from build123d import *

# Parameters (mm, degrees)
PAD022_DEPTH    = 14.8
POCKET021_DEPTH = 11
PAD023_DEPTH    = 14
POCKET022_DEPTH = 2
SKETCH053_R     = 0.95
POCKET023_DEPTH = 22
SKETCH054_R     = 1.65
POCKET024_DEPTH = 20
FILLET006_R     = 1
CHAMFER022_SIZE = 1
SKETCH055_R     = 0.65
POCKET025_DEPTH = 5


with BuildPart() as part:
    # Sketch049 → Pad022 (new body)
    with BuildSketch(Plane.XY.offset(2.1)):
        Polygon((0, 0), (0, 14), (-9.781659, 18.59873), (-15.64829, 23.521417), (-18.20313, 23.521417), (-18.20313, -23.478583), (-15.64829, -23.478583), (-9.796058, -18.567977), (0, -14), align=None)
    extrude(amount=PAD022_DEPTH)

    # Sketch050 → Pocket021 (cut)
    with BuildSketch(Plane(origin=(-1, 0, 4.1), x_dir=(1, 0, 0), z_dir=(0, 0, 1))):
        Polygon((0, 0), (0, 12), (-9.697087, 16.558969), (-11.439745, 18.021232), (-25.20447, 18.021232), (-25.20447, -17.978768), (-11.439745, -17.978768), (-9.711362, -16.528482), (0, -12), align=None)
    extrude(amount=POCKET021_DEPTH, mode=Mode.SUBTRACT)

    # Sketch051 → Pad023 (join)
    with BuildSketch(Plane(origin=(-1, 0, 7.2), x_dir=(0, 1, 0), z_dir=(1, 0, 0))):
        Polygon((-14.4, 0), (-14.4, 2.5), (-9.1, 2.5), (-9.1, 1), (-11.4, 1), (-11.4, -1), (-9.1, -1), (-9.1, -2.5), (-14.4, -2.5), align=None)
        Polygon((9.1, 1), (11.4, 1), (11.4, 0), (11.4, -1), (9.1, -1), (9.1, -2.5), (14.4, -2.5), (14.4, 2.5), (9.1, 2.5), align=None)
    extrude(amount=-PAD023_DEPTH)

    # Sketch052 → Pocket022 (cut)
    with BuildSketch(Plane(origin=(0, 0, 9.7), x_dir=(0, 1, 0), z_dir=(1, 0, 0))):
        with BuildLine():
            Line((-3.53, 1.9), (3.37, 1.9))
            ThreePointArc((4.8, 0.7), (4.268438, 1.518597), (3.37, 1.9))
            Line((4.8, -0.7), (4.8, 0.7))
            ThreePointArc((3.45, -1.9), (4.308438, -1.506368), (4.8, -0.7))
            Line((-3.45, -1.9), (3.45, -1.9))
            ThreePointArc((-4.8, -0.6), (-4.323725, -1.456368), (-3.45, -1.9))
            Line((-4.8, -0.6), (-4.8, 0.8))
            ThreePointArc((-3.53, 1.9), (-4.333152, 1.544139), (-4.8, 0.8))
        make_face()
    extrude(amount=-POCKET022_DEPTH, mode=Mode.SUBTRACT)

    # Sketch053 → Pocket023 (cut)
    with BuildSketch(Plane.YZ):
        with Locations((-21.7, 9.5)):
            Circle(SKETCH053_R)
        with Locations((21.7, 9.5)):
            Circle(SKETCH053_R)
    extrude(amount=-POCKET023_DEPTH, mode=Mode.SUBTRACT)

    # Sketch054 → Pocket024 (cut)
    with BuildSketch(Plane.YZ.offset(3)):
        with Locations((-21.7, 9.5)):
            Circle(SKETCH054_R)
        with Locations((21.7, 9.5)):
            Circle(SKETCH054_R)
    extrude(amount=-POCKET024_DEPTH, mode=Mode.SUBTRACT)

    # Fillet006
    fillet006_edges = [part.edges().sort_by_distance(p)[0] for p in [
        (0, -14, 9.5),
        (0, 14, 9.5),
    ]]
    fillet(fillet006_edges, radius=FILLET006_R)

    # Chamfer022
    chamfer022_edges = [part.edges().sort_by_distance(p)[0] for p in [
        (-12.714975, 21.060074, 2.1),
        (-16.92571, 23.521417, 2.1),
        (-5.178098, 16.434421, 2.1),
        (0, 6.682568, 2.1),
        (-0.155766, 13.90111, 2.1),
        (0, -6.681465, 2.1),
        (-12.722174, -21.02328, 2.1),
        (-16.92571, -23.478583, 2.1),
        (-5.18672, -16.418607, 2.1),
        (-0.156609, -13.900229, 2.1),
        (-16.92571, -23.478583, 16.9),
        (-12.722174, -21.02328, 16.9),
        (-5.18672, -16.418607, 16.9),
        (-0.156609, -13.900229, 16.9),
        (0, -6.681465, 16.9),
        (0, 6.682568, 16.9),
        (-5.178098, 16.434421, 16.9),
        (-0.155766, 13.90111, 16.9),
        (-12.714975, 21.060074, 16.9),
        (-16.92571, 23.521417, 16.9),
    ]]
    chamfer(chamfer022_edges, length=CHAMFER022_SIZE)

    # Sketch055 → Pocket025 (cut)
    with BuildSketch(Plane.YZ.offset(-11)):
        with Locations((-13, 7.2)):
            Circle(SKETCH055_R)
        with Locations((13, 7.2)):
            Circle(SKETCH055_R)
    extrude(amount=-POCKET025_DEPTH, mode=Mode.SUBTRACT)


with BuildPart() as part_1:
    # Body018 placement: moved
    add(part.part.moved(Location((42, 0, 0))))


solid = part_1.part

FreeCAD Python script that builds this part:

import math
import FreeCAD as App
import Part
import Sketcher

V = App.Vector
Q = App.Units.Quantity


def edges_at(feature, points):
    """Names of the edges that pass closest to the given points."""
    edges = feature.Shape.Edges
    near = lambda p: min(range(len(edges)), key=lambda i: edges[i].distToShape(Part.Vertex(*p))[0])
    return sorted({f"Edge{near(p) + 1}" for p in points})


def add_polygon(sketch, points):
    """Adds a closed chain of lines whose ends are joined by coincident constraints."""
    first, n = sketch.GeometryCount, len(points)
    for a, b in zip(points, points[1:] + points[:1]):
        sketch.addGeometry(Part.LineSegment(App.Vector(*a, 0), App.Vector(*b, 0)), False)
    for i in range(n):
        sketch.addConstraint(Sketcher.Constraint("Coincident", first + i, 2, first + (i + 1) % n, 1))

doc = App.newDocument("Part")
params = doc.addObject("Spreadsheet::Sheet", "Params")
for row, (alias, value) in enumerate([
    ("sketch1_height", "47 mm"),
    ("sketch1_height2", "28 mm"),
    ("pad1_length", "14.8 mm"),
    ("sketch2_height", "36 mm"),
    ("sketch2_height2", "24 mm"),
    ("pocket1_length", "11 mm"),
    ("sketch3_height", "5 mm"),
    ("sketch3_height2", "2 mm"),
    ("sketch3_width", "5.3 mm"),
    ("sketch3_width2", "2.3 mm"),
    ("pad2_length", "14 mm"),
    ("sketch4_width", "6.9 mm"),
    ("sketch4_height", "1.4 mm"),
    ("pocket2_length", "2 mm"),
    ("sketch5_diameter", "1.9 mm"),
    ("pocket3_length", "22 mm"),
    ("sketch6_diameter", "3.3 mm"),
    ("pocket4_length", "20 mm"),
    ("fillet_radius", "1 mm"),
    ("chamfer_size", "1 mm"),
    ("sketch7_diameter", "1.3 mm"),
    ("pocket5_length", "5 mm"),
], start=1):
    params.set(f"A{row}", alias)
    params.set(f"B{row}", "=" + value)
    params.setAlias(f"B{row}", alias)

body = doc.addObject("PartDesign::Body", "Body")

# Sketch on XY plane
sketch1 = body.newObject("Sketcher::SketchObject", "Sketch")
sketch1.AttachmentSupport = (doc.getObject("XY_Plane"), [""])
sketch1.MapMode = "FlatFace"
sketch1.AttachmentOffset = App.Placement(V(0, 0, 2.1), App.Rotation())
add_polygon(sketch1, [(0, 14), (-9.8, 18.6), (-15.6, 23.5), (-18.2, 23.5), (-18.2, -23.5), (-15.6, -23.5), (-9.8, -18.6), (0, -14)])  # lines 0-7
sketch1.addConstraint([
    Sketcher.Constraint("Horizontal", 2),
    Sketcher.Constraint("Vertical", 3),
    Sketcher.Constraint("Horizontal", 4),
    Sketcher.Constraint("Vertical", 7),
    Sketcher.Constraint("Symmetric", 6, 2, 7, 2, -1, 1),
    Sketcher.Constraint("Vertical", 1, 2, 4, 2),
    Sketcher.Constraint("Equal", 0, 6),
    Sketcher.Constraint("DistanceY", 3, 2, 3, 1, 47.0),
    Sketcher.Constraint("DistanceY", 7, 1, 7, 2, 28.0),
    Sketcher.Constraint("Angle", 1, Q("140.000005 deg")),
    Sketcher.Constraint("Angle", 5, Q("40.000002 deg")),
    Sketcher.Constraint("Angle", 6, Q("25.000001 deg")),
    Sketcher.Constraint("Angle", 0, Q("154.819998 deg")),
    Sketcher.Constraint("DistanceX", 2, 2, 2, 1, 2.55484),
    Sketcher.Constraint("DistanceX", 0, 2, -1, 1, 9.781659),
])
sketch1.setExpression("Constraints[15]", "Params.sketch1_height")
sketch1.setExpression("Constraints[16]", "Params.sketch1_height2")
pad1 = body.newObject("PartDesign::Pad", "Pad")
pad1.Profile = sketch1
pad1.setExpression("Length", "Params.pad1_length")

# Sketch on XY plane
sketch2 = body.newObject("Sketcher::SketchObject", "Sketch001")
sketch2.AttachmentSupport = (doc.getObject("XY_Plane"), [""])
sketch2.MapMode = "FlatFace"
sketch2.AttachmentOffset = App.Placement(V(0, 0, 4.1), App.Rotation())
add_polygon(sketch2, [(-1, 12), (-10.7, 16.6), (-12.4, 18), (-26.2, 18), (-26.2, -18), (-12.4, -18), (-10.7, -16.5), (-1, -12)])  # lines 0-7
sketch2.addConstraint([
    Sketcher.Constraint("Horizontal", 2),
    Sketcher.Constraint("Vertical", 3),
    Sketcher.Constraint("Horizontal", 4),
    Sketcher.Constraint("Vertical", 7),
    Sketcher.Constraint("Vertical", 1, 2, 4, 2),
    Sketcher.Constraint("Equal", 0, 6),
    Sketcher.Constraint("DistanceY", 3, 2, 3, 1, 36.0),
    Sketcher.Constraint("DistanceY", 7, 1, 7, 2, 24.0),
    Sketcher.Constraint("Angle", 1, Q("140.000013 deg")),
    Sketcher.Constraint("Angle", 5, Q("40.000009 deg")),
    Sketcher.Constraint("Angle", 6, Q("24.999998 deg")),
    Sketcher.Constraint("DistanceX", 6, 2, -1, 1, 1.0),
    Sketcher.Constraint("DistanceY", 6, 2, -1, 1, 12.0),
    Sketcher.Constraint("Angle", 0, Q("154.82 deg")),
    Sketcher.Constraint("Distance", 0, 10.715302),
    Sketcher.Constraint("DistanceX", 2, 2, 2, 1, 13.764725),
])
sketch2.setExpression("Constraints[14]", "Params.sketch2_height")
sketch2.setExpression("Constraints[15]", "Params.sketch2_height2")
pocket1 = body.newObject("PartDesign::Pocket", "Pocket")
pocket1.Profile = sketch2
pocket1.setExpression("Length", "Params.pocket1_length")
pocket1.Reversed = True

# Sketch on YZ plane
sketch3 = body.newObject("Sketcher::SketchObject", "Sketch002")
sketch3.AttachmentSupport = (doc.getObject("YZ_Plane"), [""])
sketch3.MapMode = "FlatFace"
sketch3.AttachmentOffset = App.Placement(V(0, 0, -1), App.Rotation())
add_polygon(sketch3, [(-14.4, 9.7), (-14.4, 4.7), (-9.1, 4.7), (-9.1, 6.2), (-11.4, 6.2), (-11.4, 8.2), (-9.1, 8.2), (-9.1, 9.7)])  # lines 0-7
add_polygon(sketch3, [(9.1, 8.2), (11.4, 8.2), (11.4, 6.2), (9.1, 6.2), (9.1, 4.7), (14.4, 4.7), (14.4, 9.7), (9.1, 9.7)])  # lines 8-15
sketch3.addConstraint([
    Sketcher.Constraint("Vertical", 0),
    Sketcher.Constraint("Horizontal", 1),
    Sketcher.Constraint("Vertical", 2),
    Sketcher.Constraint("Horizontal", 3),
    Sketcher.Constraint("Vertical", 4),
    Sketcher.Constraint("Horizontal", 5),
    Sketcher.Constraint("Vertical", 6),
    Sketcher.Constraint("Horizontal", 7),
    Sketcher.Constraint("Horizontal", 8),
    Sketcher.Constraint("Vertical", 9),
    Sketcher.Constraint("Horizontal", 10),
    Sketcher.Constraint("Vertical", 11),
    Sketcher.Constraint("Horizontal", 12),
    Sketcher.Constraint("Vertical", 13),
    Sketcher.Constraint("Horizontal", 14),
    Sketcher.Constraint("Vertical", 15),
    Sketcher.Constraint("Symmetric", 4, 2, 8, 2, -2),
    Sketcher.Constraint("Symmetric", 2, 2, 10, 2, -2),
    Sketcher.Constraint("Symmetric", 0, 2, 12, 2, -2),
    Sketcher.Constraint("Symmetric", 6, 2, 14, 2, -2),
    Sketcher.Constraint("Vertical", 2, 2, 5, 2),
    Sketcher.Constraint("Equal", 2, 6),
    Sketcher.Constraint("DistanceY", 0, 2, 0, 1, 5.0),
    Sketcher.Constraint("DistanceY", 4, 1, 4, 2, 2.0),
    Sketcher.Constraint("DistanceX", 1, 1, 1, 2, 5.3),
    Sketcher.Constraint("DistanceX", 3, 2, 3, 1, 2.3),
    Sketcher.Constraint("DistanceX", 0, 2, -1, 1, 14.4),
    Sketcher.Constraint("DistanceY", -1, 1, 0, 2, 4.7),
])
sketch3.setExpression("Constraints[38]", "Params.sketch3_height")
sketch3.setExpression("Constraints[39]", "Params.sketch3_height2")
sketch3.setExpression("Constraints[40]", "Params.sketch3_width")
sketch3.setExpression("Constraints[41]", "Params.sketch3_width2")
pad2 = body.newObject("PartDesign::Pad", "Pad001")
pad2.Profile = sketch3
pad2.setExpression("Length", "Params.pad2_length")
pad2.Reversed = True

# Sketch on YZ plane
sketch4 = body.newObject("Sketcher::SketchObject", "Sketch003")
sketch4.AttachmentSupport = (doc.getObject("YZ_Plane"), [""])
sketch4.MapMode = "FlatFace"
sketch4.addGeometry([
    Part.LineSegment(V(3.4, 11.6, 0), V(-3.5, 11.6, 0)),  # 0
    Part.ArcOfCircle(Part.Circle(V(-3.3, 10.1, 0), V(0, 0, 1), 1.5), math.radians(97), math.radians(165)),  # 1
    Part.LineSegment(V(-4.8, 10.5, 0), V(-4.8, 9.1, 0)),  # 2
    Part.ArcOfCircle(Part.Circle(V(-3.2, 9.5, 0), V(0, 0, 1), 1.7), math.radians(-168), math.radians(-100)),  # 3
    Part.LineSegment(V(-3.5, 7.8, 0), V(3.5, 7.8, 0)),  # 4
    Part.ArcOfCircle(Part.Circle(V(3.2, 9.4, 0), V(0, 0, 1), 1.6), math.radians(-82), math.radians(-14)),  # 5
    Part.LineSegment(V(4.8, 9, 0), V(4.8, 10.4, 0)),  # 6
    Part.ArcOfCircle(Part.Circle(V(3.2, 9.9, 0), V(0, 0, 1), 1.7), math.radians(16), math.radians(84)),  # 7
], False)
sketch4.addConstraint([
    Sketcher.Constraint("Coincident", 0, 2, 1, 1),
    Sketcher.Constraint("Coincident", 1, 2, 2, 1),
    Sketcher.Constraint("Coincident", 2, 2, 3, 1),
    Sketcher.Constraint("Coincident", 3, 2, 4, 1),
    Sketcher.Constraint("Coincident", 4, 2, 5, 1),
    Sketcher.Constraint("Coincident", 5, 2, 6, 1),
    Sketcher.Constraint("Coincident", 6, 2, 7, 1),
    Sketcher.Constraint("Coincident", 7, 2, 0, 1),
    Sketcher.Constraint("Horizontal", 0),
    Sketcher.Constraint("Vertical", 2),
    Sketcher.Constraint("Horizontal", 4),
    Sketcher.Constraint("Vertical", 6),
    Sketcher.Constraint("Equal", 0, 4),
    Sketcher.Constraint("Equal", 2, 6),
    Sketcher.Constraint("DistanceX", 0, 2, 0, 1, 6.9),
    Sketcher.Constraint("DistanceY", 2, 2, 2, 1, 1.4),
    Sketcher.Constraint("DistanceY", -1, 1, 5, 2, 9.0),
    Sketcher.Constraint("DistanceY", -1, 1, 0, 2, 11.6),
    Sketcher.Constraint("DistanceX", 1, 2, -1, 1, 4.8),
    Sketcher.Constraint("DistanceY", -1, 1, 1, 2, 10.5),
    Sketcher.Constraint("DistanceY", -1, 1, 3, 2, 7.8),
    Sketcher.Constraint("DistanceX", -1, 1, 5, 2, 4.8),
    Sketcher.Constraint("DistanceX", 0, 2, -1, 1, 3.53),
    Sketcher.Constraint("DistanceX", 3, 2, -1, 1, 3.45),
    Sketcher.Constraint("Radius", 3, 1.675779),
    Sketcher.Constraint("DistanceY", 5, 3, 3, 3, 0.049999),
    Sketcher.Constraint("DistanceX", 7, 3, 5, 3, 0.040001),
    Sketcher.Constraint("Radius", 1, 1.502298),
])
sketch4.setExpression("Constraints[14]", "Params.sketch4_width")
sketch4.setExpression("Constraints[15]", "Params.sketch4_height")
pocket2 = body.newObject("PartDesign::Pocket", "Pocket001")
pocket2.Profile = sketch4
pocket2.setExpression("Length", "Params.pocket2_length")

# Sketch on YZ plane
sketch5 = body.newObject("Sketcher::SketchObject", "Sketch004")
sketch5.AttachmentSupport = (doc.getObject("YZ_Plane"), [""])
sketch5.MapMode = "FlatFace"
sketch5.addGeometry([
    Part.Circle(V(-21.7, 9.5, 0), V(0, 0, 1), 0.9),
    Part.Circle(V(21.7, 9.5, 0), V(0, 0, 1), 0.9),
], False)
sketch5.addConstraint([
    Sketcher.Constraint("Equal", 0, 1),
    Sketcher.Constraint("Symmetric", 0, 3, 1, 3, -2),
    Sketcher.Constraint("Diameter", 0, 1.9),
    Sketcher.Constraint("DistanceX", 0, 3, -1, 1, 21.7),
    Sketcher.Constraint("DistanceY", -1, 1, 0, 3, 9.5),
])
sketch5.setExpression("Constraints[2]", "Params.sketch5_diameter")
pocket3 = body.newObject("PartDesign::Pocket", "Pocket002")
pocket3.Profile = sketch5
pocket3.setExpression("Length", "Params.pocket3_length")

# Sketch on YZ plane
sketch6 = body.newObject("Sketcher::SketchObject", "Sketch005")
sketch6.AttachmentSupport = (doc.getObject("YZ_Plane"), [""])
sketch6.MapMode = "FlatFace"
sketch6.AttachmentOffset = App.Placement(V(0, 0, 3), App.Rotation())
sketch6.addGeometry([
    Part.Circle(V(-21.7, 9.5, 0), V(0, 0, 1), 1.6),
    Part.Circle(V(21.7, 9.5, 0), V(0, 0, 1), 1.6),
], False)
sketch6.addConstraint([
    Sketcher.Constraint("Equal", 0, 1),
    Sketcher.Constraint("Symmetric", 0, 3, 1, 3, -2),
    Sketcher.Constraint("Diameter", 0, 3.3),
    Sketcher.Constraint("DistanceX", 0, 3, -1, 1, 21.7),
    Sketcher.Constraint("DistanceY", -1, 1, 0, 3, 9.5),
])
sketch6.setExpression("Constraints[2]", "Params.sketch6_diameter")
pocket4 = body.newObject("PartDesign::Pocket", "Pocket003")
pocket4.Profile = sketch6
pocket4.setExpression("Length", "Params.pocket4_length")
doc.recompute()

fillet = body.newObject("PartDesign::Fillet", "Fillet")
fillet.Base = (pocket4, edges_at(pocket4, [(0, -14, 9.5), (0, 14, 9.5)]))
fillet.setExpression("Radius", "Params.fillet_radius")
doc.recompute()

chamfer = body.newObject("PartDesign::Chamfer", "Chamfer")
chamfer.Base = (fillet, edges_at(fillet, [
    (-12.715, 21.06, 2.1),
    (-16.926, 23.521, 2.1),
    (-5.178, 16.434, 2.1),
    (0, 0.001, 2.1),
    (-0.156, 13.901, 2.1),
    (0, 0.001, 2.1),
    (-12.722, -21.023, 2.1),
    (-16.926, -23.479, 2.1),
    (-5.187, -16.419, 2.1),
    (-0.157, -13.9, 2.1),
    (-16.926, -23.479, 16.9),
    (-12.722, -21.023, 16.9),
    (-5.187, -16.419, 16.9),
    (-0.157, -13.9, 16.9),
    (0, 0.001, 16.9),
    (0, 0.001, 16.9),
    (-5.178, 16.434, 16.9),
    (-0.156, 13.901, 16.9),
    (-12.715, 21.06, 16.9),
    (-16.926, 23.521, 16.9),
]))
chamfer.setExpression("Size", "Params.chamfer_size")

# Sketch on YZ plane
sketch7 = body.newObject("Sketcher::SketchObject", "Sketch006")
sketch7.AttachmentSupport = (doc.getObject("YZ_Plane"), [""])
sketch7.MapMode = "FlatFace"
sketch7.AttachmentOffset = App.Placement(V(0, 0, -11), App.Rotation())
sketch7.addGeometry([
    Part.Circle(V(-13, 7.2, 0), V(0, 0, 1), 0.7),
    Part.Circle(V(13, 7.2, 0), V(0, 0, 1), 0.7),
], False)
sketch7.addConstraint([
    Sketcher.Constraint("Equal", 0, 1),
    Sketcher.Constraint("Symmetric", 0, 3, 1, 3, -2),
    Sketcher.Constraint("Diameter", 0, 1.3),
    Sketcher.Constraint("DistanceX", 0, 3, -1, 1, 13.0),
    Sketcher.Constraint("DistanceY", -1, 1, 0, 3, 7.2),
])
sketch7.setExpression("Constraints[2]", "Params.sketch7_diameter")
pocket5 = body.newObject("PartDesign::Pocket", "Pocket004")
pocket5.Profile = sketch7
pocket5.setExpression("Length", "Params.pocket5_length")
body2 = doc.addObject("PartDesign::Body", "Body001")
doc.recompute()

body.Placement = App.Placement(V(42, 0, 0), App.Rotation(V(0, 0, 1), 0))
boolean = body2.newObject("PartDesign::Boolean", "Boolean")
boolean.Type = "Fuse"
boolean.addObjects([body])

doc.recompute()
